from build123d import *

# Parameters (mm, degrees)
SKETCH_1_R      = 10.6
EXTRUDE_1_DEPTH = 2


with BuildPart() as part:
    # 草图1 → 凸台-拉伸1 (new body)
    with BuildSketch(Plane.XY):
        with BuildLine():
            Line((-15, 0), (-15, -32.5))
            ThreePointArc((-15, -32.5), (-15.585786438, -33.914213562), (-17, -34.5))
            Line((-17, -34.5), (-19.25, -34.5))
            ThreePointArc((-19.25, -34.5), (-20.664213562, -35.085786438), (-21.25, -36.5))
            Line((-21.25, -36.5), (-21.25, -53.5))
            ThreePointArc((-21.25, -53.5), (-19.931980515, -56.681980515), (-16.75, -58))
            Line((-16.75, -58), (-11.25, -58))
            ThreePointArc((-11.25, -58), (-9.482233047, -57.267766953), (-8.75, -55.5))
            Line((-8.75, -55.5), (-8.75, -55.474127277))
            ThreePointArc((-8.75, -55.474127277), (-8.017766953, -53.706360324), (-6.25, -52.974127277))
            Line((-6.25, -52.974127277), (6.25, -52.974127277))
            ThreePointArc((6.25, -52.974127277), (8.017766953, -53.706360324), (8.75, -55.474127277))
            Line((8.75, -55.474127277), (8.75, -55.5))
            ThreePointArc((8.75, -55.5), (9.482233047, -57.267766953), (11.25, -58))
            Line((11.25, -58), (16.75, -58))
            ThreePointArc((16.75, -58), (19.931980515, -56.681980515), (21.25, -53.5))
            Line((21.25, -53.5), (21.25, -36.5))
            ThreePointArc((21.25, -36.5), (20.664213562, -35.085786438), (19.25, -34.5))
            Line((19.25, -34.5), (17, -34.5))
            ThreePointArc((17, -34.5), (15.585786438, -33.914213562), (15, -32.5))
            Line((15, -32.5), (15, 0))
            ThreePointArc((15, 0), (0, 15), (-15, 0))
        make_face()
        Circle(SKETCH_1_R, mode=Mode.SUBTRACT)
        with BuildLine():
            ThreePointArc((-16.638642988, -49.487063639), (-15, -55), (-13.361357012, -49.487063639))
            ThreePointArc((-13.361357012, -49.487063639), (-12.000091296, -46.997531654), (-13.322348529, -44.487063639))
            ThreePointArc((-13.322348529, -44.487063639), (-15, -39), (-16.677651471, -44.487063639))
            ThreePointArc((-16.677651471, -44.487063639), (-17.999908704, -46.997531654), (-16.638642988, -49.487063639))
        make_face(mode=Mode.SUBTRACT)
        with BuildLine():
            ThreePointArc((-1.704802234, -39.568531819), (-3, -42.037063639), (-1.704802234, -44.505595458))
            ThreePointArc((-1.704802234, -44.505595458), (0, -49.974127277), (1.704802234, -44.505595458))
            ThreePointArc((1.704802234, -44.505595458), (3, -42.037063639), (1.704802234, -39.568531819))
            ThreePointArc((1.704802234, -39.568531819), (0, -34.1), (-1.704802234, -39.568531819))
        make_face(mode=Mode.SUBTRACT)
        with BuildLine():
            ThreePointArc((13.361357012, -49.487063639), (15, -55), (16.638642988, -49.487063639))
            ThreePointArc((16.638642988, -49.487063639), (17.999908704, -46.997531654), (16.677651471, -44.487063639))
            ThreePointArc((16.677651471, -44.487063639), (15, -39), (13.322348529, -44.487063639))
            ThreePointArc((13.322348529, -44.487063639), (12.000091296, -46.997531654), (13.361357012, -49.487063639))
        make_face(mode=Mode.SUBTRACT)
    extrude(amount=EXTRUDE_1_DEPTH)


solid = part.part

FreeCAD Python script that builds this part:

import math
import FreeCAD as App
import Part
import Sketcher

doc = App.newDocument("Part")
body = doc.addObject("PartDesign::Body", "Body")

# Sketch on XY plane
sketch1 = body.newObject("Sketcher::SketchObject", "Sketch")
sketch1.AttachmentSupport = (doc.getObject("XY_Plane"), [""])
sketch1.MapMode = "FlatFace"
sketch1.addGeometry([
    Part.LineSegment(App.Vector(-15, 0, 0), App.Vector(-15, -32.5, 0)),  # 0
    Part.ArcOfCircle(Part.Circle(App.Vector(-17, -32.5, 0), App.Vector(0, 0, 1), 2), math.radians(-90), math.radians(0)),  # 1
    Part.LineSegment(App.Vector(-17, -34.5, 0), App.Vector(-19.25, -34.5, 0)),  # 2
    Part.ArcOfCircle(Part.Circle(App.Vector(-19.25, -36.5, 0), App.Vector(0, 0, 1), 2), math.radians(90), math.radians(180)),  # 3
    Part.LineSegment(App.Vector(-21.25, -36.5, 0), App.Vector(-21.25, -53.5, 0)),  # 4
    Part.ArcOfCircle(Part.Circle(App.Vector(-16.75, -53.5, 0), App.Vector(0, 0, 1), 4.5), math.radians(-180), math.radians(-90)),  # 5
    Part.LineSegment(App.Vector(-16.75, -58, 0), App.Vector(-11.25, -58, 0)),  # 6
    Part.ArcOfCircle(Part.Circle(App.Vector(-11.25, -55.5, 0), App.Vector(0, 0, 1), 2.5), math.radians(-90), math.radians(0)),  # 7
    Part.LineSegment(App.Vector(-8.75, -55.5, 0), App.Vector(-8.75, -55.474, 0)),  # 8
    Part.ArcOfCircle(Part.Circle(App.Vector(-6.25, -55.474, 0), App.Vector(0, 0, 1), 2.5), math.radians(90), math.radians(180)),  # 9
    Part.LineSegment(App.Vector(-6.25, -52.974, 0), App.Vector(6.25, -52.974, 0)),  # 10
    Part.ArcOfCircle(Part.Circle(App.Vector(6.25, -55.474, 0), App.Vector(0, 0, 1), 2.5), math.radians(0), math.radians(90)),  # 11
    Part.LineSegment(App.Vector(8.75, -55.474, 0), App.Vector(8.75, -55.5, 0)),  # 12
    Part.ArcOfCircle(Part.Circle(App.Vector(11.25, -55.5, 0), App.Vector(0, 0, 1), 2.5), math.radians(180), math.radians(270)),  # 13
    Part.LineSegment(App.Vector(11.25, -58, 0), App.Vector(16.75, -58, 0)),  # 14
    Part.ArcOfCircle(Part.Circle(App.Vector(16.75, -53.5, 0), App.Vector(0, 0, 1), 4.5), math.radians(-90), math.radians(0)),  # 15
    Part.LineSegment(App.Vector(21.25, -53.5, 0), App.Vector(21.25, -36.5, 0)),  # 16
    Part.ArcOfCircle(Part.Circle(App.Vector(19.25, -36.5, 0), App.Vector(0, 0, 1), 2), math.radians(0), math.radians(90)),  # 17
    Part.LineSegment(App.Vector(19.25, -34.5, 0), App.Vector(17, -34.5, 0)),  # 18
    Part.ArcOfCircle(Part.Circle(App.Vector(17, -32.5, 0), App.Vector(0, 0, 1), 2), math.radians(-180), math.radians(-90)),  # 19
    Part.LineSegment(App.Vector(15, -32.5, 0), App.Vector(15, 0, 0)),  # 20
    Part.ArcOfCircle(Part.Circle(App.Vector(0, 0, 0), App.Vector(0, 0, 1), 15), math.radians(0), math.radians(180)),  # 21
    Part.ArcOfCircle(Part.Circle(App.Vector(-15, -52, 0), App.Vector(0, 0, 1), 3), math.radians(123), math.radians(417)),  # 22
    Part.ArcOfCircle(Part.Circle(App.Vector(-15, -46.974, 0), App.Vector(0, 0, 1), 3), math.radians(124), math.radians(237)),  # 23
    Part.ArcOfCircle(Part.Circle(App.Vector(-15, -42, 0), App.Vector(0, 0, 1), 3), math.radians(-56), math.radians(236)),  # 24
    Part.ArcOfCircle(Part.Circle(App.Vector(-15, -46.974, 0), App.Vector(0, 0, 1), 3), math.radians(-57), math.radians(56)),  # 25
    Part.ArcOfCircle(Part.Circle(App.Vector(0, -42.037, 0), App.Vector(0, 0, 1), 3), math.radians(125), math.radians(235)),  # 26
    Part.ArcOfCircle(Part.Circle(App.Vector(0, -37.1, 0), App.Vector(0, 0, 1), 3), math.radians(-55), math.radians(235)),  # 27
    Part.ArcOfCircle(Part.Circle(App.Vector(0, -42.037, 0), App.Vector(0, 0, 1), 3), math.radians(-55), math.radians(55)),  # 28
    Part.ArcOfCircle(Part.Circle(App.Vector(0, -46.974, 0), App.Vector(0, 0, 1), 3), math.radians(125), math.radians(415)),  # 29
    Part.ArcOfCircle(Part.Circle(App.Vector(15, -52, 0), App.Vector(0, 0, 1), 3), math.radians(123), math.radians(417)),  # 30
    Part.ArcOfCircle(Part.Circle(App.Vector(15, -46.974, 0), App.Vector(0, 0, 1), 3), math.radians(124), math.radians(237)),  # 31
    Part.ArcOfCircle(Part.Circle(App.Vector(15, -42, 0), App.Vector(0, 0, 1), 3), math.radians(-56), math.radians(236)),  # 32
    Part.ArcOfCircle(Part.Circle(App.Vector(15, -46.974, 0), App.Vector(0, 0, 1), 3), math.radians(-57), math.radians(56)),  # 33
    Part.Circle(App.Vector(0, 0, 0), App.Vector(0, 0, 1), 10.6),  # 34
], False)
sketch1.addConstraint([
    Sketcher.Constraint("Tangent", 0, 2, 1, 2),
    Sketcher.Constraint("Tangent", 1, 1, 2, 1),
    Sketcher.Constraint("Tangent", 2, 2, 3, 1),
    Sketcher.Constraint("Tangent", 3, 2, 4, 1),
    Sketcher.Constraint("Tangent", 4, 2, 5, 1),
    Sketcher.Constraint("Tangent", 5, 2, 6, 1),
    Sketcher.Constraint("Tangent", 6, 2, 7, 1),
    Sketcher.Constraint("Tangent", 7, 2, 8, 1),
    Sketcher.Constraint("Tangent", 8, 2, 9, 2),
    Sketcher.Constraint("Tangent", 9, 1, 10, 1),
    Sketcher.Constraint("Tangent", 10, 2, 11, 2),
    Sketcher.Constraint("Tangent", 11, 1, 12, 1),
    Sketcher.Constraint("Tangent", 12, 2, 13, 1),
    Sketcher.Constraint("Tangent", 13, 2, 14, 1),
    Sketcher.Constraint("Tangent", 14, 2, 15, 1),
    Sketcher.Constraint("Tangent", 15, 2, 16, 1),
    Sketcher.Constraint("Tangent", 16, 2, 17, 1),
    Sketcher.Constraint("Tangent", 17, 2, 18, 1),
    Sketcher.Constraint("Tangent", 18, 2, 19, 2),
    Sketcher.Constraint("Tangent", 19, 1, 20, 1),
    Sketcher.Constraint("Tangent", 20, 2, 21, 1),
    Sketcher.Constraint("Tangent", 21, 2, 0, 1),
    Sketcher.Constraint("Coincident", 22, 1, 23, 2),
    Sketcher.Constraint("Coincident", 23, 1, 24, 2),
    Sketcher.Constraint("Coincident", 24, 1, 25, 2),
    Sketcher.Constraint("Coincident", 25, 1, 22, 2),
    Sketcher.Constraint("Coincident", 26, 1, 27, 2),
    Sketcher.Constraint("Coincident", 27, 1, 28, 2),
    Sketcher.Constraint("Coincident", 28, 1, 29, 2),
    Sketcher.Constraint("Coincident", 29, 1, 26, 2),
    Sketcher.Constraint("Coincident", 30, 1, 31, 2),
    Sketcher.Constraint("Coincident", 31, 1, 32, 2),
    Sketcher.Constraint("Coincident", 32, 1, 33, 2),
    Sketcher.Constraint("Coincident", 33, 1, 30, 2),
    Sketcher.Constraint("Vertical", 0),
    Sketcher.Constraint("Horizontal", 2),
    Sketcher.Constraint("Vertical", 4),
    Sketcher.Constraint("Horizontal", 6),
    Sketcher.Constraint("Vertical", 8),
    Sketcher.Constraint("Horizontal", 10),
    Sketcher.Constraint("Vertical", 12),
    Sketcher.Constraint("Horizontal", 14),
    Sketcher.Constraint("Vertical", 16),
    Sketcher.Constraint("Horizontal", 18),
    Sketcher.Constraint("Vertical", 20),
    Sketcher.Constraint("Coincident", 21, 3, -1, 1),
    Sketcher.Constraint("Coincident", 34, 3, -1, 1),
    Sketcher.Constraint("Coincident", 25, 3, 23, 3),
    Sketcher.Constraint("Coincident", 28, 3, 26, 3),
    Sketcher.Constraint("Coincident", 33, 3, 31, 3),
    Sketcher.Constraint("Equal", 1, 3),
    Sketcher.Constraint("Equal", 7, 9),
    Sketcher.Constraint("Equal", 9, 11),
    Sketcher.Constraint("Equal", 11, 13),
    Sketcher.Constraint("Equal", 5, 15),
    Sketcher.Constraint("Equal", 3, 17),
    Sketcher.Constraint("Equal", 17, 19),
    Sketcher.Constraint("Equal", 22, 23),
    Sketcher.Constraint("Equal", 23, 24),
    Sketcher.Constraint("Equal", 24, 25),
    Sketcher.Constraint("Equal", 25, 26),
    Sketcher.Constraint("Equal", 26, 27),
    Sketcher.Constraint("Equal", 27, 28),
    Sketcher.Constraint("Equal", 28, 29),
    Sketcher.Constraint("Equal", 29, 30),
    Sketcher.Constraint("Equal", 30, 31),
    Sketcher.Constraint("Equal", 31, 32),
    Sketcher.Constraint("Equal", 32, 33),
    Sketcher.Constraint("Symmetric", 7, 3, 13, 3, -2),
    Sketcher.Constraint("Symmetric", 3, 3, 17, 3, -2),
    Sketcher.Constraint("Symmetric", 22, 3, 30, 3, -2),
    Sketcher.Constraint("Symmetric", 23, 3, 31, 3, -2),
    Sketcher.Constraint("Symmetric", 24, 3, 32, 3, -2),
    Sketcher.Constraint("Symmetric", 26, 1, 27, 1, -2),
    Sketcher.Constraint("PointOnObject", 29, 3, -2),
    Sketcher.Constraint("Horizontal", 25, 3, 29, 3),
    Sketcher.Constraint("Horizontal", 23, 1, 24, 1),
    Sketcher.Constraint("Horizontal", 22, 1, 25, 1),
    Sketcher.Constraint("Vertical", 25, 3, 0, 2),
    Sketcher.Constraint("Vertical", 27, 1, 28, 1),
    Sketcher.Constraint("Radius", 1, 2.0),
    Sketcher.Constraint("Radius", 21, 15.0),
    Sketcher.Constraint("Radius", 22, 3.0),
    Sketcher.Constraint("Diameter", 34, 21.2),
    Sketcher.Constraint("Radius", 5, 4.5),
    Sketcher.Constraint("Radius", 7, 2.5),
    Sketcher.Constraint("DistanceY", 4, 2, 4, 1, 17.0),
    Sketcher.Constraint("DistanceX", 6, 1, 6, 2, 5.5),
    Sketcher.Constraint("DistanceX", 10, 1, 10, 2, 12.5),
    Sketcher.Constraint("DistanceY", 0, 2, 0, 1, 32.5),
    Sketcher.Constraint("DistanceY", 22, 3, -1, 1, 52.0),
    Sketcher.Constraint("DistanceY", 24, 3, -1, 1, 42.0),
    Sketcher.Constraint("DistanceY", 10, 2, 29, 3, 6.0),
    Sketcher.Constraint("DistanceY", 27, 3, -1, 1, 37.1),
    Sketcher.Constraint("DistanceY", 8, 1, 8, 2, 0.025873),
])
pad1 = body.newObject("PartDesign::Pad", "Pad")
pad1.Profile = sketch1
pad1.Length = 2

doc.recompute()
